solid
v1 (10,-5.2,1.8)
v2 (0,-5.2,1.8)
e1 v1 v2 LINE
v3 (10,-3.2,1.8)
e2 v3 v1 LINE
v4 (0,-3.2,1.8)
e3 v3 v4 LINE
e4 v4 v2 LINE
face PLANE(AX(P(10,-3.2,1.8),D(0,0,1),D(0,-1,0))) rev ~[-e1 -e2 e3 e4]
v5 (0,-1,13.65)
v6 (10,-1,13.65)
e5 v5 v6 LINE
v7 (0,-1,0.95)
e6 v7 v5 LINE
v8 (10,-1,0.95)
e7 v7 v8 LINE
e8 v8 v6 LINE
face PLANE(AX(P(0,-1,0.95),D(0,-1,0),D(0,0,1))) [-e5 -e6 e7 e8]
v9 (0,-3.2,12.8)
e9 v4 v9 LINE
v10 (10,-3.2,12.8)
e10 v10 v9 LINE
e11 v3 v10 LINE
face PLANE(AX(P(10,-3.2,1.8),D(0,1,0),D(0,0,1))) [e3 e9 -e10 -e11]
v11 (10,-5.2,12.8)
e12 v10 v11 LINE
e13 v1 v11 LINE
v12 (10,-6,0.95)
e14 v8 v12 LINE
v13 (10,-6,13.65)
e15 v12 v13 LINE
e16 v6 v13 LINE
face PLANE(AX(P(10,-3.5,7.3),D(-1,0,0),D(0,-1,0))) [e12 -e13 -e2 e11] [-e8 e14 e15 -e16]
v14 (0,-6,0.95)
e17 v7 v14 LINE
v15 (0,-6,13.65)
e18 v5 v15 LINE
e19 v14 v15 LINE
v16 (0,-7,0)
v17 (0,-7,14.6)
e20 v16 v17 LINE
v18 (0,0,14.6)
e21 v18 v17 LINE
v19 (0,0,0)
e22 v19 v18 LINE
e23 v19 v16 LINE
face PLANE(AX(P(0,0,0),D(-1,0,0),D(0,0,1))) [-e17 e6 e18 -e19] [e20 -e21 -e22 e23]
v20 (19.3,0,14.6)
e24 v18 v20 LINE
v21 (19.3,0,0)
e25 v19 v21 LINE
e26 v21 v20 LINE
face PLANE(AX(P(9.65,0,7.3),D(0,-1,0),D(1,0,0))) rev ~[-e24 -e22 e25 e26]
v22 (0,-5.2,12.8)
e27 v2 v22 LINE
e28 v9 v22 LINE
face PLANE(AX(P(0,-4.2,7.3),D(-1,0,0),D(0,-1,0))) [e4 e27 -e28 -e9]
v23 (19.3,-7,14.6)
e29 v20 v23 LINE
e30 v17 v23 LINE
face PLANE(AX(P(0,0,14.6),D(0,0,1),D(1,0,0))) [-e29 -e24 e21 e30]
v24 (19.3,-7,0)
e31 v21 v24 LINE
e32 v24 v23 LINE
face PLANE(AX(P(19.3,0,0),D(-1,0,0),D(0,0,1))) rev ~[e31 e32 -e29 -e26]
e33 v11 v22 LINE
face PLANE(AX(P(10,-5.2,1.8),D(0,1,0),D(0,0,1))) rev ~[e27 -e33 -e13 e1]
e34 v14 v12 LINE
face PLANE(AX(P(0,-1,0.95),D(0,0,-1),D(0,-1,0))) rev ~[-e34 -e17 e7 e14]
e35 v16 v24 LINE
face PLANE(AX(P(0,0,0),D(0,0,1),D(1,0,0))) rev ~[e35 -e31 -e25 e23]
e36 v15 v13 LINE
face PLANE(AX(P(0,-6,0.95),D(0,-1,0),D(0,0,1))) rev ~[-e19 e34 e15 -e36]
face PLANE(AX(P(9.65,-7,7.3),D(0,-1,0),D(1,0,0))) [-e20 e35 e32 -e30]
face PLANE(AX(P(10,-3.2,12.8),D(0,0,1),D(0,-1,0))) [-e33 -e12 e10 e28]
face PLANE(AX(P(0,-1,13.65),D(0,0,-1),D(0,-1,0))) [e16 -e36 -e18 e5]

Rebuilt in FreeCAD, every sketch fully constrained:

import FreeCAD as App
import Part
import Sketcher

V = App.Vector
Q = App.Units.Quantity

doc = App.newDocument("Part")
body = doc.addObject("PartDesign::Body", "Body")

# Sketch on XZ plane
sketch1 = doc.addObject("Sketcher::SketchObject", "Sketch")
body.addObject(sketch1)
sketch1.AttachmentSupport = (doc.XZ_Plane, [""])
sketch1.MapMode = "FlatFace"
sketch1.addGeometry([
    Part.LineSegment(V(0, 15, 0), V(0, 0, 0)),
    Part.LineSegment(V(0, 0, 0), V(19, 0, 0)),
    Part.LineSegment(V(19, 0, 0), V(19, 15, 0)),
    Part.LineSegment(V(19, 15, 0), V(0, 15, 0)),
], False)
sketch1.addConstraint([
    Sketcher.Constraint("Coincident", 0, 2, 1, 1),
    Sketcher.Constraint("Coincident", 1, 2, 2, 1),
    Sketcher.Constraint("Coincident", 2, 2, 3, 1),
    Sketcher.Constraint("Coincident", 3, 2, 0, 1),
    Sketcher.Constraint("Vertical", 0),
    Sketcher.Constraint("Horizontal", 1),
    Sketcher.Constraint("Vertical", 2),
    Sketcher.Constraint("Horizontal", 3),
    Sketcher.Constraint("Coincident", 0, 2, -1, 1),
    Sketcher.Constraint("DistanceX", 1, 1, 1, 2, Q("19.3 mm")),
    Sketcher.Constraint("DistanceY", 0, 2, 0, 1, Q("14.6 mm")),
])
pad1 = doc.addObject("PartDesign::Pad", "Pad")
body.addObject(pad1)
pad1.Profile = sketch1
pad1.Length = 7

# Sketch on YZ plane
sketch2 = doc.addObject("Sketcher::SketchObject", "Sketch001")
body.addObject(sketch2)
sketch2.AttachmentSupport = (doc.YZ_Plane, [""])
sketch2.MapMode = "FlatFace"
sketch2.addGeometry([
    Part.LineSegment(V(-1, 14, 0), V(-1, 1, 0)),
    Part.LineSegment(V(-1, 1, 0), V(-6, 1, 0)),
    Part.LineSegment(V(-6, 1, 0), V(-6, 14, 0)),
    Part.LineSegment(V(-6, 14, 0), V(-1, 14, 0)),
], False)
sketch2.addConstraint([
    Sketcher.Constraint("Coincident", 0, 2, 1, 1),
    Sketcher.Constraint("Coincident", 1, 2, 2, 1),
    Sketcher.Constraint("Coincident", 2, 2, 3, 1),
    Sketcher.Constraint("Coincident", 3, 2, 0, 1),
    Sketcher.Constraint("Vertical", 0),
    Sketcher.Constraint("Horizontal", 1),
    Sketcher.Constraint("Vertical", 2),
    Sketcher.Constraint("Horizontal", 3),
    Sketcher.Constraint("DistanceX", 1, 2, 1, 1, Q("5 mm")),
    Sketcher.Constraint("DistanceY", 0, 2, 0, 1, Q("12.7 mm")),
    Sketcher.Constraint("DistanceX", 0, 2, -1, 1, Q("1 mm")),
    Sketcher.Constraint("DistanceY", -1, 1, 0, 2, Q("0.95 mm")),
])
pocket1 = doc.addObject("PartDesign::Pocket", "Pocket")
body.addObject(pocket1)
pocket1.Profile = sketch2
pocket1.Length = 10
pocket1.Reversed = True

# Sketch on YZ plane
sketch3 = doc.addObject("Sketcher::SketchObject", "Sketch002")
body.addObject(sketch3)
sketch3.AttachmentSupport = (doc.YZ_Plane, [""])
sketch3.MapMode = "FlatFace"
sketch3.AttachmentOffset = App.Placement(V(0, 0, 10), App.Rotation())
sketch3.addGeometry([
    Part.LineSegment(V(-3.2, 12.8, 0), V(-3.2, 1.8, 0)),
    Part.LineSegment(V(-3.2, 1.8, 0), V(-5.2, 1.8, 0)),
    Part.LineSegment(V(-5.2, 1.8, 0), V(-5.2, 12.8, 0)),
    Part.LineSegment(V(-5.2, 12.8, 0), V(-3.2, 12.8, 0)),
], False)
sketch3.addConstraint([
    Sketcher.Constraint("Coincident", 0, 2, 1, 1),
    Sketcher.Constraint("Coincident", 1, 2, 2, 1),
    Sketcher.Constraint("Coincident", 2, 2, 3, 1),
    Sketcher.Constraint("Coincident", 3, 2, 0, 1),
    Sketcher.Constraint("Vertical", 0),
    Sketcher.Constraint("Horizontal", 1),
    Sketcher.Constraint("Vertical", 2),
    Sketcher.Constraint("Horizontal", 3),
    Sketcher.Constraint("DistanceX", 1, 2, 1, 1, Q("2 mm")),
    Sketcher.Constraint("DistanceY", 0, 2, 0, 1, Q("11 mm")),
    Sketcher.Constraint("DistanceX", 0, 2, -1, 1, Q("3.2 mm")),
    Sketcher.Constraint("DistanceY", -1, 1, 0, 2, Q("1.8 mm")),
])
pad2 = doc.addObject("PartDesign::Pad", "Pad001")
body.addObject(pad2)
pad2.Profile = sketch3
pad2.Length = 10
pad2.Reversed = True

doc.recompute()
